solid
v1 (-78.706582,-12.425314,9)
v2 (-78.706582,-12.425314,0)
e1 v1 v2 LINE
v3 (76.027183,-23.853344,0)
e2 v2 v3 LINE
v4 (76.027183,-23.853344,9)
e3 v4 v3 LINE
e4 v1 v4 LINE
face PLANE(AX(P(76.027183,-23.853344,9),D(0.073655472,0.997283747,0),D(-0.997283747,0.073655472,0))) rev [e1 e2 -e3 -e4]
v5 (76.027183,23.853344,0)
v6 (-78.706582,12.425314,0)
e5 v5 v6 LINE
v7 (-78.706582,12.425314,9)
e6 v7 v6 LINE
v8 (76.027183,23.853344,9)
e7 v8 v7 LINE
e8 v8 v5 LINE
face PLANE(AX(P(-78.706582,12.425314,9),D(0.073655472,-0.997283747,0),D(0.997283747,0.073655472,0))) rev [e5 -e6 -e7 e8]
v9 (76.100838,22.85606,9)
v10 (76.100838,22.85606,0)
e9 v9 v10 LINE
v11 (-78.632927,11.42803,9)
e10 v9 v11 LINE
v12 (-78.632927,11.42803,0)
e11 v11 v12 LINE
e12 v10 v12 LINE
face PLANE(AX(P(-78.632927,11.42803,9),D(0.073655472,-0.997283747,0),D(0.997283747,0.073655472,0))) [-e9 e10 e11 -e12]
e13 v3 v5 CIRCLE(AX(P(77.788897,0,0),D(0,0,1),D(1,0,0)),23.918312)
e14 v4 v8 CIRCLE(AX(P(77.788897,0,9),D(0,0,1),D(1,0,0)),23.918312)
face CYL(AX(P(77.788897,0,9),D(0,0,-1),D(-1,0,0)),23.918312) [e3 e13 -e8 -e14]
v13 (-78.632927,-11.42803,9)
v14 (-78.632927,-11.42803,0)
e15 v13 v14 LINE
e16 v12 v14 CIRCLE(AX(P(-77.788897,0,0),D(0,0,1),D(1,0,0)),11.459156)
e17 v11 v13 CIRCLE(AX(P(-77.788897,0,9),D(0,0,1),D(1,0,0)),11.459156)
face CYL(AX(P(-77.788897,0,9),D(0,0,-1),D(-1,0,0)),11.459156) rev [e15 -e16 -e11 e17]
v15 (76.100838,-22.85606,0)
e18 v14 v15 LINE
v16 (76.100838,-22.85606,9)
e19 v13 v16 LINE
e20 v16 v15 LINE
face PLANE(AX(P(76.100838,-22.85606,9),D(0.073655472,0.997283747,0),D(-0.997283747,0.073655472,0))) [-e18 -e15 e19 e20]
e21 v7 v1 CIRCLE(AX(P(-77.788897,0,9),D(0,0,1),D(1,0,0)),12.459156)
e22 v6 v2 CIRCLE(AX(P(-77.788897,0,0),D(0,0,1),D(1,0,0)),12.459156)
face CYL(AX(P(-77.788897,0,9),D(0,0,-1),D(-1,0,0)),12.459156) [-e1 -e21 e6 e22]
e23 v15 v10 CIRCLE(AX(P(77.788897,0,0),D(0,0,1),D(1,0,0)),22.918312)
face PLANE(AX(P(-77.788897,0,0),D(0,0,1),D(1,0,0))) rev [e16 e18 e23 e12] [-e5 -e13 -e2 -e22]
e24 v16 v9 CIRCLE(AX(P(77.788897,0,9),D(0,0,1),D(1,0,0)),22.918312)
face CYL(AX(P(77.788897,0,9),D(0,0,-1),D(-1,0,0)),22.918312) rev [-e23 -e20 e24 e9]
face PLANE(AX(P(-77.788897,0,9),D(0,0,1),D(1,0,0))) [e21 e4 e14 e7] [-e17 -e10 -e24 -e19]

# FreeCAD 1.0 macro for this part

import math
import FreeCAD as App
import Part
import Sketcher

doc = App.newDocument("Part")
body = doc.addObject("PartDesign::Body", "Body")

# Sketch on XY plane
sketch1 = body.newObject("Sketcher::SketchObject", "Sketch")
sketch1.AttachmentSupport = (doc.getObject("XY_Plane"), [""])
sketch1.MapMode = "FlatFace"
sketch1.addGeometry(Part.LineSegment(App.Vector(-79, -12, 0), App.Vector(76, -24, 0)), False)
sketch1.addGeometry(Part.ArcOfCircle(Part.Circle(App.Vector(78, 0, 0), App.Vector(0, 0, 1), 24), math.radians(-94), math.radians(94)), False)
sketch1.addGeometry(Part.LineSegment(App.Vector(76, 24, 0), App.Vector(-79, 12, 0)), False)
sketch1.addGeometry(Part.ArcOfCircle(Part.Circle(App.Vector(-78, 0, 0), App.Vector(0, 0, 1), 12), math.radians(94), math.radians(266)), False)
sketch1.addGeometry(Part.LineSegment(App.Vector(76, -23, 0), App.Vector(-79, -11, 0)), False)
sketch1.addGeometry(Part.ArcOfCircle(Part.Circle(App.Vector(-78, 0, 0), App.Vector(0, 0, 1), 11), math.radians(94), math.radians(266)), False)
sketch1.addGeometry(Part.LineSegment(App.Vector(-79, 11, 0), App.Vector(76, 23, 0)), False)
sketch1.addGeometry(Part.ArcOfCircle(Part.Circle(App.Vector(78, 0, 0), App.Vector(0, 0, 1), 23), math.radians(-94), math.radians(94)), False)
sketch1.addConstraint(Sketcher.Constraint("Tangent", 0, 2, 1, 1))
sketch1.addConstraint(Sketcher.Constraint("Tangent", 1, 2, 2, 1))
sketch1.addConstraint(Sketcher.Constraint("Tangent", 2, 2, 3, 1))
sketch1.addConstraint(Sketcher.Constraint("Tangent", 3, 2, 0, 1))
sketch1.addConstraint(Sketcher.Constraint("Tangent", 4, 2, 5, 2))
sketch1.addConstraint(Sketcher.Constraint("Tangent", 5, 1, 6, 1))
sketch1.addConstraint(Sketcher.Constraint("Tangent", 6, 2, 7, 2))
sketch1.addConstraint(Sketcher.Constraint("Tangent", 7, 1, 4, 1))
sketch1.addConstraint(Sketcher.Constraint("Coincident", 5, 3, 3, 3))
sketch1.addConstraint(Sketcher.Constraint("Coincident", 7, 3, 1, 3))
sketch1.addConstraint(Sketcher.Constraint("Symmetric", 1, 3, 3, 3, -1, 1))
sketch1.addConstraint(Sketcher.Constraint("PointOnObject", 1, 3, -1))
sketch1.addConstraint(Sketcher.Constraint("Parallel", 0, 4))
sketch1.addConstraint(Sketcher.Constraint("Radius", 1, 23.918312))
sketch1.addConstraint(Sketcher.Constraint("Radius", 7, 22.918312))
sketch1.addConstraint(Sketcher.Constraint("Radius", 3, 12.459156))
sketch1.addConstraint(Sketcher.Constraint("DistanceX", 3, 3, 0, 2, 153.81608))
pad1 = body.newObject("PartDesign::Pad", "Pad")
pad1.Profile = sketch1
pad1.Length = 9

doc.recompute()
